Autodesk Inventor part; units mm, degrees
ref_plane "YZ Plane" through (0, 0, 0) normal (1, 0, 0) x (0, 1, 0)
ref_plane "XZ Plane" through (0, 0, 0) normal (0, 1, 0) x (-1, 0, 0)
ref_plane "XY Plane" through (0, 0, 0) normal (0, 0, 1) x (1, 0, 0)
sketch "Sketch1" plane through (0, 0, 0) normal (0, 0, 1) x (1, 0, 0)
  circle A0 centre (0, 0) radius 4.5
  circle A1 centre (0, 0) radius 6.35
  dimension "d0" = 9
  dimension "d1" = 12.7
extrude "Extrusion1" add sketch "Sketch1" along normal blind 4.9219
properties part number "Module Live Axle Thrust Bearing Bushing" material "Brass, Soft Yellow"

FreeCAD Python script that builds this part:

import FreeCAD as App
import Part
import Sketcher
from FreeCAD import Vector
Q = App.Units.Quantity

doc = App.newDocument("Part")
body = doc.addObject("PartDesign::Body", "Body")

# Sketch on XY plane
sketch1 = body.newObject("Sketcher::SketchObject", "Sketch")
sketch1.AttachmentSupport = (doc.getObject("XY_Plane"), [""])
sketch1.MapMode = "FlatFace"
sketch1.addGeometry([
    Part.Circle(Vector(0, 0, 0), Vector(0, 0, 1), 6.35),
    Part.Circle(Vector(0, 0, 0), Vector(0, 0, 1), 4.5),
], False)
sketch1.addConstraint([
    Sketcher.Constraint("Coincident", 0, 3, -1, 1),
    Sketcher.Constraint("Coincident", 1, 3, -1, 1),
    Sketcher.Constraint("Diameter", 1, Q("9 mm")),
    Sketcher.Constraint("Diameter", 0, Q("12.7 mm")),
])
pad1 = body.newObject("PartDesign::Pad", "Pad")
pad1.Profile = sketch1
pad1.Length = 4.9219

doc.recompute()
